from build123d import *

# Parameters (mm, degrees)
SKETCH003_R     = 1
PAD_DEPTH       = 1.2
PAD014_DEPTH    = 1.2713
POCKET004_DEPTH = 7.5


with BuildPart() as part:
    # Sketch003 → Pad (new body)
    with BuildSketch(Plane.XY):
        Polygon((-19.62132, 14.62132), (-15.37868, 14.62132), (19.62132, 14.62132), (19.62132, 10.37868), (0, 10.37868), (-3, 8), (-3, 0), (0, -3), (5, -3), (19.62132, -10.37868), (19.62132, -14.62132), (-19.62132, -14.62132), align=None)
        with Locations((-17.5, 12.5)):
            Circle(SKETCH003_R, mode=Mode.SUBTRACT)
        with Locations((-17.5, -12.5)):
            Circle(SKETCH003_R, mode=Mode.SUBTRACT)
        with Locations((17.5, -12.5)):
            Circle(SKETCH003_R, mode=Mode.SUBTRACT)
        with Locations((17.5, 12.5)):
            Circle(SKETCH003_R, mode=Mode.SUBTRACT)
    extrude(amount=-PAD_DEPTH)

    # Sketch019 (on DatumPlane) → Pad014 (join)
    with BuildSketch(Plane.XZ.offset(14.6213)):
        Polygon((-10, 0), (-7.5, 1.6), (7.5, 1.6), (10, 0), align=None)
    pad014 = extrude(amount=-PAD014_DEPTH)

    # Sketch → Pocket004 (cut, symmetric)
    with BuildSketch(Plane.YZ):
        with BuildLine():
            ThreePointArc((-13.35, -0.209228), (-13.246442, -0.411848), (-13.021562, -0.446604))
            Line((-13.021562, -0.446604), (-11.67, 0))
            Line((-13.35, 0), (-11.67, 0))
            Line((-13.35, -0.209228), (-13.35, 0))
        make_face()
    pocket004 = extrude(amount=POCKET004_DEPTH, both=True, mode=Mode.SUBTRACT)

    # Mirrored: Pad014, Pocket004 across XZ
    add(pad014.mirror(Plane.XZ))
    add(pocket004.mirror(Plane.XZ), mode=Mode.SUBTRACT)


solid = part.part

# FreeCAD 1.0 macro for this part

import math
import FreeCAD as App
import Part
import Sketcher

V = App.Vector
Q = App.Units.Quantity


def add_polygon(sketch, points):
    """Adds a closed chain of lines whose ends are joined by coincident constraints."""
    first, n = sketch.GeometryCount, len(points)
    for a, b in zip(points, points[1:] + points[:1]):
        sketch.addGeometry(Part.LineSegment(App.Vector(*a, 0), App.Vector(*b, 0)), False)
    for i in range(n):
        sketch.addConstraint(Sketcher.Constraint("Coincident", first + i, 2, first + (i + 1) % n, 1))

doc = App.newDocument("Part")
body = doc.addObject("PartDesign::Body", "Body")

sketch1 = body.newObject("Sketcher::SketchObject", "Sketch")
sketch1.AttachmentSupport = (doc.getObject("XY_Plane"), [""])
sketch1.MapMode = "FlatFace"
add_polygon(sketch1, [(19.6, 14.6), (-19.6, 14.6), (-19.6, -14.6), (19.6, -14.6), (19.6, -10.4), (5, -3), (0, -3), (-3, 0), (-3, 8), (0, 10.4), (19.6, 10.4)])
sketch1.addGeometry(Part.Circle(V(17.5, -12.5, 0), V(0, 0, 1), 1), False)
sketch1.addGeometry(Part.Circle(V(-17.5, -12.5, 0), V(0, 0, 1), 1), False)
sketch1.addGeometry(Part.Circle(V(17.5, 12.5, 0), V(0, 0, 1), 1), False)
sketch1.addGeometry(Part.Circle(V(-17.5, 12.5, 0), V(0, 0, 1), 1), False)
sketch1.addConstraint([
    Sketcher.Constraint("Horizontal", 0),
    Sketcher.Constraint("Vertical", 1),
    Sketcher.Constraint("Horizontal", 2),
    Sketcher.Constraint("Vertical", 3),
    Sketcher.Constraint("Horizontal", 5),
    Sketcher.Constraint("Vertical", 7),
    Sketcher.Constraint("Horizontal", 9),
    Sketcher.Constraint("Vertical", 10),
    Sketcher.Constraint("Equal", 11, 12),
    Sketcher.Constraint("Equal", 12, 13),
    Sketcher.Constraint("Equal", 13, 14),
    Sketcher.Constraint("Symmetric", 12, 3, 13, 3, -1, 1),
    Sketcher.Constraint("Symmetric", 11, 3, 14, 3, -1, 1),
    Sketcher.Constraint("Symmetric", 0, 2, 2, 2, -1, 1),
    Sketcher.Constraint("Symmetric", 11, 3, 12, 3, -2),
    Sketcher.Constraint("Symmetric", 3, 2, 9, 2, -1),
    Sketcher.Constraint("PointOnObject", 5, 2, -2),
    Sketcher.Constraint("PointOnObject", 6, 2, -1),
    Sketcher.Constraint("PointOnObject", 8, 2, -2),
    Sketcher.Constraint("Diameter", 11, Q("2 mm")),
    Sketcher.Constraint("DistanceX", 5, 2, 5, 1, Q("5 mm")),
    Sketcher.Constraint("DistanceY", 7, 1, 7, 2, Q("8 mm")),
    Sketcher.Constraint("Angle", 6, Q("135 deg")),
    Sketcher.Constraint("DistanceY", 4, 2, -1, 1, Q("3 mm")),
    Sketcher.Constraint("DistanceX", 12, 3, 11, 3, Q("35 mm")),
    Sketcher.Constraint("DistanceY", 11, 3, 13, 3, Q("25 mm")),
    Sketcher.Constraint("DistanceX", 0, 2, 0, 1, Q("39.24264 mm")),
    Sketcher.Constraint("DistanceY", 1, 2, 1, 1, Q("29.24264 mm")),
    Sketcher.Constraint("DistanceY", 3, 1, 3, 2, Q("4.24264 mm")),
])
pad1 = body.newObject("PartDesign::Pad", "Pad")
pad1.Profile = sketch1
pad1.Length = 1.2
pad1.Reversed = True

sketch2 = body.newObject("Sketcher::SketchObject", "Sketch001")
sketch2.AttachmentSupport = (doc.getObject("XZ_Plane"), [""])
sketch2.MapMode = "FlatFace"
sketch2.AttachmentOffset = App.Placement(V(0, 0, 14.6213), App.Rotation())
add_polygon(sketch2, [(-7.5, 1.6), (-10, 0), (10, 0), (7.5, 1.6)])
sketch2.addConstraint([
    Sketcher.Constraint("Horizontal", 1),
    Sketcher.Constraint("Horizontal", 3),
    Sketcher.Constraint("Symmetric", 0, 2, 1, 2, -1, 1),
    Sketcher.Constraint("Equal", 0, 2),
    Sketcher.Constraint("DistanceX", 1, 1, 1, 2, Q("20 mm")),
    Sketcher.Constraint("DistanceX", 3, 2, 3, 1, Q("15 mm")),
    Sketcher.Constraint("DistanceY", -1, 1, 2, 2, Q("1.6 mm")),
])
pad2 = body.newObject("PartDesign::Pad", "Pad001")
pad2.Profile = sketch2
pad2.Length = 1.2713
pad2.Reversed = True

sketch3 = body.newObject("Sketcher::SketchObject", "Sketch002")
sketch3.AttachmentSupport = (doc.getObject("YZ_Plane"), [""])
sketch3.MapMode = "FlatFace"
sketch3.addGeometry([
    Part.ArcOfCircle(Part.Circle(V(-13.1, -0.21, 0), V(0, 0, 1), 0.25), math.radians(180), math.radians(288)),
    Part.LineSegment(V(-13.02, -0.45, 0), V(-11.67, 0, 0)),
    Part.LineSegment(V(-11.67, 0, 0), V(-13.35, 0, 0)),
    Part.LineSegment(V(-13.35, 0, 0), V(-13.35, -0.21, 0)),
], False)
sketch3.addConstraint([
    Sketcher.Constraint("Coincident", 0, 2, 1, 1),
    Sketcher.Constraint("Coincident", 1, 2, 2, 1),
    Sketcher.Constraint("Coincident", 2, 2, 3, 1),
    Sketcher.Constraint("Coincident", 3, 2, 0, 1),
    Sketcher.Constraint("Horizontal", 2),
    Sketcher.Constraint("Vertical", 3),
    Sketcher.Constraint("PointOnObject", 1, 2, -1),
    Sketcher.Constraint("Horizontal", 0, 3, 3, 2),
    Sketcher.Constraint("Radius", 0, Q("0.249999 mm")),
    Sketcher.Constraint("DistanceX", 2, 2, 2, 1, Q("1.68 mm")),
    Sketcher.Constraint("DistanceX", 0, 3, -1, 1, Q("13.100001 mm")),
    Sketcher.Constraint("DistanceY", 3, 2, 3, 1, Q("0.209228 mm")),
    Sketcher.Constraint("DistanceX", 0, 2, -1, 1, Q("13.021562 mm")),
])
pocket1 = body.newObject("PartDesign::Pocket", "Pocket")
pocket1.Profile = sketch3
pocket1.Length = 15
pocket1.Midplane = True
doc.recompute()

mirrored = body.newObject("PartDesign::Mirrored", "Mirrored")
mirrored.Originals = [pad2, pocket1]
mirrored.MirrorPlane = (doc.getObject("XZ_Plane"), [""])
body.Tip = mirrored

doc.recompute()
